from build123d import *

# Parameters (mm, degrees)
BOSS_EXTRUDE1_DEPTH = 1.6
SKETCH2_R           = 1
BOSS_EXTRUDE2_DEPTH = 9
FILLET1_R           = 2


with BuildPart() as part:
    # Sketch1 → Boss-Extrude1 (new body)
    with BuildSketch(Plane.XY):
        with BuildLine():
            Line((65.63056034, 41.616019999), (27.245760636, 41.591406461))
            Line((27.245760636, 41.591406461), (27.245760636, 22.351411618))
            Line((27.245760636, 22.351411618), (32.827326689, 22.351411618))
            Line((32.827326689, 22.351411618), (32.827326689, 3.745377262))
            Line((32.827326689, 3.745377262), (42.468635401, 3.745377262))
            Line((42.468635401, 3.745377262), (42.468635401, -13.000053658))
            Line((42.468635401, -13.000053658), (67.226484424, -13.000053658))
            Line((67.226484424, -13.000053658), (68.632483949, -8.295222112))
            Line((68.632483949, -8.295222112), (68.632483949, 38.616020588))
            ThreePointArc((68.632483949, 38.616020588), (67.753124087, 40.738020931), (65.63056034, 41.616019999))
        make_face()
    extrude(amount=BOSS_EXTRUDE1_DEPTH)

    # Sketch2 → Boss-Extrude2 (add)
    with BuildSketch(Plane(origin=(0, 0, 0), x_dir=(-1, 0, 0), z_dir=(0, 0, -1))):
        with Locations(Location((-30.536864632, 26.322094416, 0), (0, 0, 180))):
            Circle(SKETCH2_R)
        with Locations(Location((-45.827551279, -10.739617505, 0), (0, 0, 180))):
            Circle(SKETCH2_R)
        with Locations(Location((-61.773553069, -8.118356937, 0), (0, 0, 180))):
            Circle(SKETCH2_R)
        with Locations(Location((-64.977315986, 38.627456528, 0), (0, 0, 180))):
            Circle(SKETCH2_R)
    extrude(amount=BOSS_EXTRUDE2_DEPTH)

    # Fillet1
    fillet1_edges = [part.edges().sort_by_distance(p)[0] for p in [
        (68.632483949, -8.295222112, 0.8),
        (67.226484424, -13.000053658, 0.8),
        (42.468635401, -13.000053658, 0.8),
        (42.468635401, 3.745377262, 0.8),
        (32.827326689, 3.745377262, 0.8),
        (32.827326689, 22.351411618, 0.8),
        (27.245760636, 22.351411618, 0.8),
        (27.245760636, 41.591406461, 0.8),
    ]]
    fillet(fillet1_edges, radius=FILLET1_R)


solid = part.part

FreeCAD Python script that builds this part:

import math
import FreeCAD as App
import Part
import Sketcher

V = App.Vector


def edges_at(feature, points):
    """Names of the edges that pass closest to the given points."""
    edges = feature.Shape.Edges
    near = lambda p: min(range(len(edges)), key=lambda i: edges[i].distToShape(Part.Vertex(*p))[0])
    return sorted({f"Edge{near(p) + 1}" for p in points})

doc = App.newDocument("Part")
body = doc.addObject("PartDesign::Body", "Body")

sketch1 = doc.addObject("Sketcher::SketchObject", "Sketch")
body.addObject(sketch1)
sketch1.AttachmentSupport = (doc.XY_Plane, [""])
sketch1.MapMode = "FlatFace"
sketch1.addGeometry(Part.LineSegment(V(65.6, 41.6, 0), V(27.2, 41.6, 0)), False)
sketch1.addGeometry(Part.LineSegment(V(27.2, 41.6, 0), V(27.2, 22.4, 0)), False)
sketch1.addGeometry(Part.LineSegment(V(27.2, 22.4, 0), V(32.8, 22.4, 0)), False)
sketch1.addGeometry(Part.LineSegment(V(32.8, 22.4, 0), V(32.8, 3.7, 0)), False)
sketch1.addGeometry(Part.LineSegment(V(32.8, 3.7, 0), V(42.5, 3.7, 0)), False)
sketch1.addGeometry(Part.LineSegment(V(42.5, 3.7, 0), V(42.5, -13, 0)), False)
sketch1.addGeometry(Part.LineSegment(V(42.5, -13, 0), V(67.2, -13, 0)), False)
sketch1.addGeometry(Part.LineSegment(V(67.2, -13, 0), V(68.6, -8.3, 0)), False)
sketch1.addGeometry(Part.LineSegment(V(68.6, -8.3, 0), V(68.6, 38.6, 0)), False)
sketch1.addGeometry(Part.ArcOfCircle(Part.Circle(V(65.6, 38.6, 0), V(0, 0, 1), 3), math.radians(0), math.radians(90)), False)
sketch1.addConstraint(Sketcher.Constraint("Coincident", 0, 2, 1, 1))
sketch1.addConstraint(Sketcher.Constraint("Coincident", 1, 2, 2, 1))
sketch1.addConstraint(Sketcher.Constraint("Coincident", 2, 2, 3, 1))
sketch1.addConstraint(Sketcher.Constraint("Coincident", 3, 2, 4, 1))
sketch1.addConstraint(Sketcher.Constraint("Coincident", 4, 2, 5, 1))
sketch1.addConstraint(Sketcher.Constraint("Coincident", 5, 2, 6, 1))
sketch1.addConstraint(Sketcher.Constraint("Coincident", 6, 2, 7, 1))
sketch1.addConstraint(Sketcher.Constraint("Coincident", 7, 2, 8, 1))
sketch1.addConstraint(Sketcher.Constraint("Tangent", 8, 2, 9, 1))
sketch1.addConstraint(Sketcher.Constraint("Tangent", 9, 2, 0, 1))
sketch1.addConstraint(Sketcher.Constraint("Vertical", 1))
sketch1.addConstraint(Sketcher.Constraint("Horizontal", 2))
sketch1.addConstraint(Sketcher.Constraint("Vertical", 3))
sketch1.addConstraint(Sketcher.Constraint("Horizontal", 4))
sketch1.addConstraint(Sketcher.Constraint("Vertical", 5))
sketch1.addConstraint(Sketcher.Constraint("Horizontal", 6))
sketch1.addConstraint(Sketcher.Constraint("Vertical", 8))
sketch1.addConstraint(Sketcher.Constraint("Radius", 9, 3.0))
sketch1.addConstraint(Sketcher.Constraint("DistanceX", 9, 3, 6, 2, 1.594001))
sketch1.addConstraint(Sketcher.Constraint("DistanceX", 4, 1, 4, 2, 9.641309))
sketch1.addConstraint(Sketcher.Constraint("DistanceX", 6, 1, 6, 2, 24.757849))
sketch1.addConstraint(Sketcher.Constraint("DistanceY", 5, 2, 5, 1, 16.745431))
sketch1.addConstraint(Sketcher.Constraint("DistanceY", 7, 2, 4, 2, 12.040599))
sketch1.addConstraint(Sketcher.Constraint("DistanceX", 0, 2, 9, 2, 38.3848))
sketch1.addConstraint(Sketcher.Constraint("DistanceX", 2, 1, 2, 2, 5.581566))
sketch1.addConstraint(Sketcher.Constraint("DistanceY", 1, 2, 1, 1, 19.239995))
sketch1.addConstraint(Sketcher.Constraint("DistanceY", 3, 2, 3, 1, 18.606034))
sketch1.addConstraint(Sketcher.Constraint("DistanceY", -1, 1, 9, 3, 38.616021))
sketch1.addConstraint(Sketcher.Constraint("DistanceX", -1, 1, 0, 2, 27.245761))
pad1 = doc.addObject("PartDesign::Pad", "Pad")
body.addObject(pad1)
pad1.Profile = sketch1
pad1.Length = 1.6

sketch2 = doc.addObject("Sketcher::SketchObject", "Sketch001")
body.addObject(sketch2)
sketch2.AttachmentSupport = (doc.XY_Plane, [""])
sketch2.MapMode = "FlatFace"
sketch2.addGeometry(Part.Circle(V(30.5, 26.3, 0), V(0, 0, 1), 1), False)
sketch2.addGeometry(Part.Circle(V(45.8, -10.7, 0), V(0, 0, 1), 1), False)
sketch2.addGeometry(Part.Circle(V(61.8, -8.1, 0), V(0, 0, 1), 1), False)
sketch2.addGeometry(Part.Circle(V(65, 38.6, 0), V(0, 0, 1), 1), False)
sketch2.addConstraint(Sketcher.Constraint("Equal", 0, 1))
sketch2.addConstraint(Sketcher.Constraint("Equal", 1, 2))
sketch2.addConstraint(Sketcher.Constraint("Equal", 2, 3))
sketch2.addConstraint(Sketcher.Constraint("Diameter", 0, 2.0))
sketch2.addConstraint(Sketcher.Constraint("DistanceX", 1, 3, 2, 3, 15.946002))
sketch2.addConstraint(Sketcher.Constraint("DistanceX", -1, 1, 1, 3, 45.827551))
sketch2.addConstraint(Sketcher.Constraint("DistanceY", 1, 3, 0, 3, 37.061712))
sketch2.addConstraint(Sketcher.Constraint("DistanceY", 1, 3, 2, 3, 2.621261))
sketch2.addConstraint(Sketcher.Constraint("DistanceX", 0, 3, 2, 3, 31.236688))
sketch2.addConstraint(Sketcher.Constraint("DistanceX", 0, 3, 3, 3, 34.440451))
sketch2.addConstraint(Sketcher.Constraint("DistanceY", -1, 1, 0, 3, 26.322094))
sketch2.addConstraint(Sketcher.Constraint("DistanceY", -1, 1, 3, 3, 38.627457))
pad2 = doc.addObject("PartDesign::Pad", "Pad001")
body.addObject(pad2)
pad2.Profile = sketch2
pad2.Length = 9
pad2.Reversed = True
doc.recompute()

fillet = doc.addObject("PartDesign::Fillet", "Fillet")
body.addObject(fillet)
fillet.Base = (pad2, edges_at(pad2, [
    (68.632, -8.295, 0.8),
    (67.226, -13, 0.8),
    (42.469, -13, 0.8),
    (42.469, 3.745, 0.8),
    (32.827, 3.745, 0.8),
    (32.827, 22.351, 0.8),
    (27.246, 22.351, 0.8),
    (27.246, 41.591, 0.8),
]))
fillet.Radius = 2

doc.recompute()
